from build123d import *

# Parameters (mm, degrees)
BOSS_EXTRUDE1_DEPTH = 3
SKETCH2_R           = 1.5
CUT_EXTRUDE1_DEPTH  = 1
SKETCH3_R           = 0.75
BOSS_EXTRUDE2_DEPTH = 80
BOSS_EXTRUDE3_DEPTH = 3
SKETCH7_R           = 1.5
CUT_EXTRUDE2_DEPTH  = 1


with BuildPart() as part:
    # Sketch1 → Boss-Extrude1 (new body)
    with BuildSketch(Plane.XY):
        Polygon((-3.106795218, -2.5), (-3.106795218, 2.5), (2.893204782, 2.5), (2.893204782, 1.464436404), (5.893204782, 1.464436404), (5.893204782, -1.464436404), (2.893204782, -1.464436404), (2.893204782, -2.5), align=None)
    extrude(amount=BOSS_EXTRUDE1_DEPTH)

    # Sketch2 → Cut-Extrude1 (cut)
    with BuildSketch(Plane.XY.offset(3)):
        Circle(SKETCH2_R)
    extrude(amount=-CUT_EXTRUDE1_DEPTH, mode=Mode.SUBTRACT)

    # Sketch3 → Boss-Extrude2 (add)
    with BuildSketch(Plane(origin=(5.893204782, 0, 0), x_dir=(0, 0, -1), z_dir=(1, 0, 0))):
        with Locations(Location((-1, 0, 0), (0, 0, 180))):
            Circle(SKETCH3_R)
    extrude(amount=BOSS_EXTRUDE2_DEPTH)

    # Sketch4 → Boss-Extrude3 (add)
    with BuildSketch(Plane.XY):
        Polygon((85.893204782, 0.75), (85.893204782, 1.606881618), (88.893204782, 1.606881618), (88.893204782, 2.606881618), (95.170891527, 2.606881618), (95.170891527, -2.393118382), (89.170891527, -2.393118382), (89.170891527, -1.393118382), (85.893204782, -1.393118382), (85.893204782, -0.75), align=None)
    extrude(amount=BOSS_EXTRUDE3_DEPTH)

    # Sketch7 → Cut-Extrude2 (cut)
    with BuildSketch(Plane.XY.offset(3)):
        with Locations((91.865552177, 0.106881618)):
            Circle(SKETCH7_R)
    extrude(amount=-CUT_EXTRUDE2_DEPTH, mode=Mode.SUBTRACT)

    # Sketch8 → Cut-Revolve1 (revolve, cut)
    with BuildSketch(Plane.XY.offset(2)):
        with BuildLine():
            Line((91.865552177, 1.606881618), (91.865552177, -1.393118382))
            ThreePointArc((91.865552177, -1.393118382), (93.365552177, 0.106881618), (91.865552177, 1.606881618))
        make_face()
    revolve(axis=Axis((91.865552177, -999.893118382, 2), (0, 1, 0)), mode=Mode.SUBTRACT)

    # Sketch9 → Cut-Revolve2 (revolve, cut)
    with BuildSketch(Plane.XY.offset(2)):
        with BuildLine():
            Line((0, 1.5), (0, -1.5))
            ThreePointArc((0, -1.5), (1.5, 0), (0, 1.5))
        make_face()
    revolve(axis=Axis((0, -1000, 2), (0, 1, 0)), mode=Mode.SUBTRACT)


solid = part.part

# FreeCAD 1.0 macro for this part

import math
import FreeCAD as App
import Part
import Sketcher

V = App.Vector
Q = App.Units.Quantity


def add_polygon(sketch, points):
    """Adds a closed chain of lines whose ends are joined by coincident constraints."""
    first, n = sketch.GeometryCount, len(points)
    for a, b in zip(points, points[1:] + points[:1]):
        sketch.addGeometry(Part.LineSegment(App.Vector(*a, 0), App.Vector(*b, 0)), False)
    for i in range(n):
        sketch.addConstraint(Sketcher.Constraint("Coincident", first + i, 2, first + (i + 1) % n, 1))

doc = App.newDocument("Part")
body = doc.addObject("PartDesign::Body", "Body")

# Sketch on XY plane
sketch1 = doc.addObject("Sketcher::SketchObject", "Sketch")
body.addObject(sketch1)
sketch1.AttachmentSupport = (doc.XY_Plane, [""])
sketch1.MapMode = "FlatFace"
add_polygon(sketch1, [(-3.1, 2.5), (-3.1, -2.5), (2.9, -2.5), (2.9, -1.5), (5.9, -1.5), (5.9, 1.5), (2.9, 1.5), (2.9, 2.5)])  # lines 0-7
sketch1.addConstraint([
    Sketcher.Constraint("Vertical", 0),
    Sketcher.Constraint("Horizontal", 1),
    Sketcher.Constraint("Vertical", 2),
    Sketcher.Constraint("Horizontal", 3),
    Sketcher.Constraint("Vertical", 4),
    Sketcher.Constraint("Horizontal", 5),
    Sketcher.Constraint("Vertical", 6),
    Sketcher.Constraint("Horizontal", 7),
    Sketcher.Constraint("Symmetric", 2, 2, 5, 2, -1),
    Sketcher.Constraint("Equal", 2, 6),
    Sketcher.Constraint("DistanceX", 1, 1, 1, 2, Q("6 mm")),
    Sketcher.Constraint("DistanceX", 3, 1, 3, 2, Q("3 mm")),
    Sketcher.Constraint("DistanceY", 0, 2, 0, 1, Q("5 mm")),
    Sketcher.Constraint("DistanceY", 2, 1, 2, 2, Q("1.035564 mm")),
    Sketcher.Constraint("DistanceX", 0, 2, -1, 1, Q("3.106795 mm")),
])
pad1 = doc.addObject("PartDesign::Pad", "Pad")
body.addObject(pad1)
pad1.Profile = sketch1
pad1.Length = 3

# Sketch on XY plane
sketch2 = doc.addObject("Sketcher::SketchObject", "Sketch001")
body.addObject(sketch2)
sketch2.AttachmentSupport = (doc.XY_Plane, [""])
sketch2.MapMode = "FlatFace"
sketch2.AttachmentOffset = App.Placement(V(0, 0, 3), App.Rotation())
sketch2.addGeometry(Part.Circle(V(0, 0, 0), V(0, 0, 1), 1.5), False)
sketch2.addConstraint([
    Sketcher.Constraint("Coincident", 0, 3, -1, 1),
    Sketcher.Constraint("Diameter", 0, Q("3 mm")),
])
pocket1 = doc.addObject("PartDesign::Pocket", "Pocket")
body.addObject(pocket1)
pocket1.Profile = sketch2
pocket1.Length = 1

# Sketch on YZ plane
sketch3 = doc.addObject("Sketcher::SketchObject", "Sketch002")
body.addObject(sketch3)
sketch3.AttachmentSupport = (doc.YZ_Plane, [""])
sketch3.MapMode = "FlatFace"
sketch3.AttachmentOffset = App.Placement(V(0, 0, 5.893205), App.Rotation())
sketch3.addGeometry(Part.Circle(V(0, 1, 0), V(0, 0, 1), 0.8), False)
sketch3.addConstraint([
    Sketcher.Constraint("PointOnObject", 0, 3, -2),
    Sketcher.Constraint("Diameter", 0, Q("1.5 mm")),
    Sketcher.Constraint("DistanceY", -1, 1, 0, 3, Q("1 mm")),
])
pad2 = doc.addObject("PartDesign::Pad", "Pad001")
body.addObject(pad2)
pad2.Profile = sketch3
pad2.Length = 80

# Sketch on XY plane
sketch4 = doc.addObject("Sketcher::SketchObject", "Sketch003")
body.addObject(sketch4)
sketch4.AttachmentSupport = (doc.XY_Plane, [""])
sketch4.MapMode = "FlatFace"
add_polygon(sketch4, [(85.9, 1.6), (85.9, -1.4), (89.2, -1.4), (89.2, -2.4), (95.2, -2.4), (95.2, 2.6), (88.9, 2.6), (88.9, 1.6)])  # lines 0-7
sketch4.addConstraint([
    Sketcher.Constraint("Vertical", 0),
    Sketcher.Constraint("Horizontal", 1),
    Sketcher.Constraint("Vertical", 2),
    Sketcher.Constraint("Horizontal", 3),
    Sketcher.Constraint("Vertical", 4),
    Sketcher.Constraint("Horizontal", 5),
    Sketcher.Constraint("Vertical", 6),
    Sketcher.Constraint("Horizontal", 7),
    Sketcher.Constraint("Equal", 7, 0),
    Sketcher.Constraint("Equal", 2, 6),
    Sketcher.Constraint("DistanceX", 3, 1, 3, 2, Q("6 mm")),
    Sketcher.Constraint("DistanceX", 7, 2, 7, 1, Q("3 mm")),
    Sketcher.Constraint("DistanceY", 2, 2, 2, 1, Q("1 mm")),
    Sketcher.Constraint("DistanceX", 1, 1, 1, 2, Q("3.277687 mm")),
    Sketcher.Constraint("DistanceY", 0, 2, -1, 1, Q("1.393118 mm")),
    Sketcher.Constraint("DistanceX", -1, 1, 1, 2, Q("89.170892 mm")),
])
pad3 = doc.addObject("PartDesign::Pad", "Pad002")
body.addObject(pad3)
pad3.Profile = sketch4
pad3.Length = 3

# Sketch on XY plane
sketch5 = doc.addObject("Sketcher::SketchObject", "Sketch004")
body.addObject(sketch5)
sketch5.AttachmentSupport = (doc.XY_Plane, [""])
sketch5.MapMode = "FlatFace"
sketch5.AttachmentOffset = App.Placement(V(0, 0, 3), App.Rotation())
sketch5.addGeometry(Part.Circle(V(91.9, 0.1, 0), V(0, 0, 1), 1.5), False)
sketch5.addConstraint([
    Sketcher.Constraint("Diameter", 0, Q("3 mm")),
    Sketcher.Constraint("DistanceY", -1, 1, 0, 3, Q("0.106882 mm")),
    Sketcher.Constraint("DistanceX", -1, 1, 0, 3, Q("91.865552 mm")),
])
pocket2 = doc.addObject("PartDesign::Pocket", "Pocket001")
body.addObject(pocket2)
pocket2.Profile = sketch5
pocket2.Length = 1

# Sketch on XY plane
sketch6 = doc.addObject("Sketcher::SketchObject", "Sketch005")
body.addObject(sketch6)
sketch6.AttachmentSupport = (doc.XY_Plane, [""])
sketch6.MapMode = "FlatFace"
sketch6.AttachmentOffset = App.Placement(V(0, 0, 2), App.Rotation())
sketch6.addGeometry([
    Part.LineSegment(V(91.9, 1.6, 0), V(91.9, -1.4, 0)),
    Part.ArcOfCircle(Part.Circle(V(91.9, 0.1, 0), V(0, 0, 1), 1.5), math.radians(-90), math.radians(90)),
], False)
sketch6.addGeometry(Part.LineSegment(V(91.9, -1.4, 0), V(91.9, 1.6, 0)), True)  # axis
sketch6.addConstraint([
    Sketcher.Constraint("Coincident", 0, 1, 1, 2),
    Sketcher.Constraint("Coincident", 1, 1, 0, 2),
    Sketcher.Constraint("Vertical", 0),
    Sketcher.Constraint("Vertical", 2),
    Sketcher.Constraint("Coincident", 2, 1, 1, 1),
    Sketcher.Constraint("Vertical", 1, 3, 0, 1),
    Sketcher.Constraint("Equal", 0, 2),
    Sketcher.Constraint("Radius", 1, Q("1.5 mm")),
    Sketcher.Constraint("DistanceY", -1, 1, 1, 3, Q("0.106882 mm")),
    Sketcher.Constraint("DistanceX", -1, 1, 1, 3, Q("91.865552 mm")),
])
groove = doc.addObject("PartDesign::Groove", "Groove")
body.addObject(groove)
groove.Profile = sketch6
groove.ReferenceAxis = (sketch6, ["Axis0"])
groove.Angle = 360

# Sketch on XY plane
sketch7 = doc.addObject("Sketcher::SketchObject", "Sketch006")
body.addObject(sketch7)
sketch7.AttachmentSupport = (doc.XY_Plane, [""])
sketch7.MapMode = "FlatFace"
sketch7.AttachmentOffset = App.Placement(V(0, 0, 2), App.Rotation())
sketch7.addGeometry([
    Part.LineSegment(V(0, 1.5, 0), V(0, -1.5, 0)),
    Part.ArcOfCircle(Part.Circle(V(0, 0, 0), V(0, 0, 1), 1.5), math.radians(-90), math.radians(90)),
], False)
sketch7.addConstraint([
    Sketcher.Constraint("Coincident", 0, 1, 1, 2),
    Sketcher.Constraint("Coincident", 1, 1, 0, 2),
    Sketcher.Constraint("Vertical", 0),
    Sketcher.Constraint("Coincident", 1, 3, -1, 1),
    Sketcher.Constraint("PointOnObject", 0, 1, -2),
    Sketcher.Constraint("Radius", 1, Q("1.5 mm")),
])
groove2 = doc.addObject("PartDesign::Groove", "Groove001")
body.addObject(groove2)
groove2.Profile = sketch7
groove2.ReferenceAxis = (sketch7, ["V_Axis"])
groove2.Angle = 360

doc.recompute()
